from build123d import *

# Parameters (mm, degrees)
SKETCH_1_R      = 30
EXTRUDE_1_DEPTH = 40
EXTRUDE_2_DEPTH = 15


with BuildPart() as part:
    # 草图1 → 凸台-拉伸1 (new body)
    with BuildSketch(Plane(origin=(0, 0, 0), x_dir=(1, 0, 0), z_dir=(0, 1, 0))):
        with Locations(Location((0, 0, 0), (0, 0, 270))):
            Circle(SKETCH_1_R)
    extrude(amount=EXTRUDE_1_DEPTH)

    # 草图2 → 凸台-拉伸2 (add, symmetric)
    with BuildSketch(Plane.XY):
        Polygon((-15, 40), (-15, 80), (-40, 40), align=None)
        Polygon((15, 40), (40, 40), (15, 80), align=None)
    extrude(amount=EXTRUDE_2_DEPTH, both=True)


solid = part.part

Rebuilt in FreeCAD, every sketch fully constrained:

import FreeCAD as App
import Part
import Sketcher

V = App.Vector

doc = App.newDocument("Part")
body = doc.addObject("PartDesign::Body", "Body")

# Sketch on XZ plane
sketch1 = body.newObject("Sketcher::SketchObject", "Sketch")
sketch1.AttachmentSupport = (doc.getObject("XZ_Plane"), [""])
sketch1.MapMode = "FlatFace"
sketch1.addGeometry(Part.Circle(V(0, 0, 0), V(0, 0, 1), 30), False)
sketch1.addConstraint([
    Sketcher.Constraint("Coincident", 0, 3, -1, 1),
    Sketcher.Constraint("Diameter", 0, 60.0),
])
pad1 = body.newObject("PartDesign::Pad", "Pad")
pad1.Profile = sketch1
pad1.Length = 40
pad1.Reversed = True

# Sketch on XY plane
sketch2 = body.newObject("Sketcher::SketchObject", "Sketch001")
sketch2.AttachmentSupport = (doc.getObject("XY_Plane"), [""])
sketch2.MapMode = "FlatFace"
sketch2.addGeometry([
    Part.LineSegment(V(-15, 40, 0), V(-15, 80, 0)),  # 0
    Part.LineSegment(V(-15, 80, 0), V(-40, 40, 0)),  # 1
    Part.LineSegment(V(-40, 40, 0), V(-15, 40, 0)),  # 2
    Part.LineSegment(V(15, 40, 0), V(40, 40, 0)),  # 3
    Part.LineSegment(V(40, 40, 0), V(15, 80, 0)),  # 4
    Part.LineSegment(V(15, 80, 0), V(15, 40, 0)),  # 5
], False)
sketch2.addConstraint([
    Sketcher.Constraint("Coincident", 0, 2, 1, 1),
    Sketcher.Constraint("Coincident", 1, 2, 2, 1),
    Sketcher.Constraint("Coincident", 2, 2, 0, 1),
    Sketcher.Constraint("Coincident", 3, 2, 4, 1),
    Sketcher.Constraint("Coincident", 4, 2, 5, 1),
    Sketcher.Constraint("Coincident", 5, 2, 3, 1),
    Sketcher.Constraint("Vertical", 0),
    Sketcher.Constraint("Horizontal", 2),
    Sketcher.Constraint("Horizontal", 3),
    Sketcher.Constraint("Vertical", 5),
    Sketcher.Constraint("Symmetric", 1, 2, 3, 2, -2),
    Sketcher.Constraint("Symmetric", 0, 2, 4, 2, -2),
    Sketcher.Constraint("DistanceX", 2, 1, 2, 2, 25.0),
    Sketcher.Constraint("DistanceY", 0, 1, 0, 2, 40.0),
    Sketcher.Constraint("DistanceX", 0, 2, -1, 1, 15.0),
    Sketcher.Constraint("DistanceY", -1, 1, 0, 2, 80.0),
])
pad2 = body.newObject("PartDesign::Pad", "Pad001")
pad2.Profile = sketch2
pad2.Length = 30
pad2.Midplane = True

doc.recompute()
